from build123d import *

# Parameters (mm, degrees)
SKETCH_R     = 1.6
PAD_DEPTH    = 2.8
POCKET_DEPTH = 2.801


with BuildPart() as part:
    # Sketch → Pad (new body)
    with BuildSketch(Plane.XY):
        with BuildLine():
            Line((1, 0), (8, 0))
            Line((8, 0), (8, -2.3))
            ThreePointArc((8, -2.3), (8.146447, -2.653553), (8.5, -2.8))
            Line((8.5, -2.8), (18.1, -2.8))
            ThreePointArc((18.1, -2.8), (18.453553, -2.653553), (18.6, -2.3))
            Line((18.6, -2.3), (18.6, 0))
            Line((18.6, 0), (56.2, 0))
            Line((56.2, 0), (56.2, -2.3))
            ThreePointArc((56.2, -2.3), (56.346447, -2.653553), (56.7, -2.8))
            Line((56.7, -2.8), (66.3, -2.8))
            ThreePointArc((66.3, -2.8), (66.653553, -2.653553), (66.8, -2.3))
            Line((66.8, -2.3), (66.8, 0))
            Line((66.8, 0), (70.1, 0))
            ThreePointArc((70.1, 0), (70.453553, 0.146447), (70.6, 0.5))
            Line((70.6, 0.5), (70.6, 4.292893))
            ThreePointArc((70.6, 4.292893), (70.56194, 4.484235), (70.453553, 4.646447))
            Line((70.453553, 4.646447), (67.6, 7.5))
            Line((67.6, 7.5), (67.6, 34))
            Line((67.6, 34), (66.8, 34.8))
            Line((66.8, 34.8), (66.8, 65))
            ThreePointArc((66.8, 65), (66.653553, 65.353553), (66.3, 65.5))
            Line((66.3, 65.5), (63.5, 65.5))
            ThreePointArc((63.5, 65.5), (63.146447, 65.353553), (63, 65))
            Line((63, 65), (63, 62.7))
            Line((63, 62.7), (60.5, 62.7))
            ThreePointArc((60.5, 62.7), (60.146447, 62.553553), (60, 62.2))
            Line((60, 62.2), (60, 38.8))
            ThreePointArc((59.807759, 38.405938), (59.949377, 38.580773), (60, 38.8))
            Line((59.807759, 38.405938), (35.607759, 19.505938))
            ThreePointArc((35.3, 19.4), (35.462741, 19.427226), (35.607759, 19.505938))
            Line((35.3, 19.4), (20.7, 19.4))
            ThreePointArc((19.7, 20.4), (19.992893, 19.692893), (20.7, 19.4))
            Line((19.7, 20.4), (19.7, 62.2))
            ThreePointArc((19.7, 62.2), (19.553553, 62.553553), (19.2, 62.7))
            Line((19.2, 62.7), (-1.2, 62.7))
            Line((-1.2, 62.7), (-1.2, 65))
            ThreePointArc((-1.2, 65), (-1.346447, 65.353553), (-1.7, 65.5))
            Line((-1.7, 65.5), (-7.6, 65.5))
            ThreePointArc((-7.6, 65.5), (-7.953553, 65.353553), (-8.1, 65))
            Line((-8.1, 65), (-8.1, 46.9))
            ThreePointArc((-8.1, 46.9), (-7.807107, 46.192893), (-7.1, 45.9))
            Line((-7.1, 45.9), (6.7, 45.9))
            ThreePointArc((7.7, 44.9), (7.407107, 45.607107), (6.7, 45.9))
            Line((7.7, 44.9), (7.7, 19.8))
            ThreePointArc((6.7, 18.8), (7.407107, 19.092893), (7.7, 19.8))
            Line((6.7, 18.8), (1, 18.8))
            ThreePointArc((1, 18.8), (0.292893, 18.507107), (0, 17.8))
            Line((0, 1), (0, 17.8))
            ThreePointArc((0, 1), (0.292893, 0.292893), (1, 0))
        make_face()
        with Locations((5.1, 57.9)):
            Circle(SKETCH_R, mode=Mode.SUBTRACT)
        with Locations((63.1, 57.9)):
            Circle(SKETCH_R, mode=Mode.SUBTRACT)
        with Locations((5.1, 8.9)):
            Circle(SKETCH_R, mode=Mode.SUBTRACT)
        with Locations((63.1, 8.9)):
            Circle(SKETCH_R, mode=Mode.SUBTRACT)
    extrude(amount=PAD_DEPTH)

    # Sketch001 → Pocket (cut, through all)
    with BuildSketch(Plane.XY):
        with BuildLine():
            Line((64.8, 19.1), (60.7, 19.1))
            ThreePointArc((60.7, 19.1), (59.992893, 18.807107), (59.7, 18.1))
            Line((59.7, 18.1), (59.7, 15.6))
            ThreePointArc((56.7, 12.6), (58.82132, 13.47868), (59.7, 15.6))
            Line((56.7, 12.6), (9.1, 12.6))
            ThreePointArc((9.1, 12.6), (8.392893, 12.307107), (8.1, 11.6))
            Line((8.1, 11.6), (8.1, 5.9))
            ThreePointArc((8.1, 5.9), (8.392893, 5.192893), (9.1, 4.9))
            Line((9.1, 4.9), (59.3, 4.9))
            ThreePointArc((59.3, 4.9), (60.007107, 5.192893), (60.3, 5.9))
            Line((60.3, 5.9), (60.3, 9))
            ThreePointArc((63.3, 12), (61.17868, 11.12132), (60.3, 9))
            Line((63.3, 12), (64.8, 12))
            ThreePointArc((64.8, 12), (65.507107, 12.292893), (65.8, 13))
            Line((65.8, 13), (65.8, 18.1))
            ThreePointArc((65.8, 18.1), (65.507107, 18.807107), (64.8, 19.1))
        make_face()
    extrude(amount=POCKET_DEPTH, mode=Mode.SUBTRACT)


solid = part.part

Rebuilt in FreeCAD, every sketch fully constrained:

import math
import FreeCAD as App
import Part
import Sketcher
Q = App.Units.Quantity

doc = App.newDocument("Part")
params = doc.addObject("Spreadsheet::Sheet", "Params")
for row, (alias, value) in enumerate([
    ("sketch1_radius", "0.999999 mm"),
    ("sketch1_diameter", "3.2 mm"),
    ("sketch1_radius2", "0.500001 mm"),
    ("sketch1_width", "7 mm"),
    ("sketch1_width2", "9.6 mm"),
    ("pad1_length", "2.8 mm"),
    ("sketch2_radius", "0.999999 mm"),
    ("sketch2_radius2", "3.000001 mm"),
    ("sketch2_width", "4.1 mm"),
    ("sketch2_width2", "47.6 mm"),
    ("sketch2_width3", "50.2 mm"),
], start=1):
    params.set(f"A{row}", alias)
    params.set(f"B{row}", "=" + value)
    params.setAlias(f"B{row}", alias)

body = doc.addObject("PartDesign::Body", "Body")

# Sketch on XY plane
sketch1 = body.newObject("Sketcher::SketchObject", "Sketch")
sketch1.AttachmentSupport = (doc.getObject("XY_Plane"), [""])
sketch1.MapMode = "FlatFace"
sketch1.addGeometry(Part.LineSegment(App.Vector(1, 0, 0), App.Vector(8, 0, 0)), False)
sketch1.addGeometry(Part.LineSegment(App.Vector(8, 0, 0), App.Vector(8, -2.3, 0)), False)
sketch1.addGeometry(Part.ArcOfCircle(Part.Circle(App.Vector(8.5, -2.3, 0), App.Vector(0, 0, 1), 0.5), math.radians(-180), math.radians(-90)), False)
sketch1.addGeometry(Part.LineSegment(App.Vector(8.5, -2.8, 0), App.Vector(18.1, -2.8, 0)), False)
sketch1.addGeometry(Part.ArcOfCircle(Part.Circle(App.Vector(18.1, -2.3, 0), App.Vector(0, 0, 1), 0.5), math.radians(-90), math.radians(0)), False)
sketch1.addGeometry(Part.LineSegment(App.Vector(18.6, -2.3, 0), App.Vector(18.6, 0, 0)), False)
sketch1.addGeometry(Part.LineSegment(App.Vector(18.6, 0, 0), App.Vector(56.2, 0, 0)), False)
sketch1.addGeometry(Part.LineSegment(App.Vector(56.2, 0, 0), App.Vector(56.2, -2.3, 0)), False)
sketch1.addGeometry(Part.ArcOfCircle(Part.Circle(App.Vector(56.7, -2.3, 0), App.Vector(0, 0, 1), 0.5), math.radians(-180), math.radians(-90)), False)
sketch1.addGeometry(Part.LineSegment(App.Vector(56.7, -2.8, 0), App.Vector(66.3, -2.8, 0)), False)
sketch1.addGeometry(Part.ArcOfCircle(Part.Circle(App.Vector(66.3, -2.3, 0), App.Vector(0, 0, 1), 0.5), math.radians(-90), math.radians(0)), False)
sketch1.addGeometry(Part.LineSegment(App.Vector(66.8, -2.3, 0), App.Vector(66.8, 0, 0)), False)
sketch1.addGeometry(Part.LineSegment(App.Vector(66.8, 0, 0), App.Vector(70.1, 0, 0)), False)
sketch1.addGeometry(Part.ArcOfCircle(Part.Circle(App.Vector(70.1, 0.5, 0), App.Vector(0, 0, 1), 0.5), math.radians(-90), math.radians(0)), False)
sketch1.addGeometry(Part.LineSegment(App.Vector(70.6, 0.5, 0), App.Vector(70.6, 4.29, 0)), False)
sketch1.addGeometry(Part.ArcOfCircle(Part.Circle(App.Vector(70.1, 4.29, 0), App.Vector(0, 0, 1), 0.5), math.radians(0), math.radians(45)), False)
sketch1.addGeometry(Part.LineSegment(App.Vector(70.45, 4.65, 0), App.Vector(67.6, 7.5, 0)), False)
sketch1.addGeometry(Part.LineSegment(App.Vector(67.6, 7.5, 0), App.Vector(67.6, 34, 0)), False)
sketch1.addGeometry(Part.LineSegment(App.Vector(67.6, 34, 0), App.Vector(66.8, 34.8, 0)), False)
sketch1.addGeometry(Part.LineSegment(App.Vector(66.8, 34.8, 0), App.Vector(66.8, 65, 0)), False)
sketch1.addGeometry(Part.ArcOfCircle(Part.Circle(App.Vector(66.3, 65, 0), App.Vector(0, 0, 1), 0.5), math.radians(0), math.radians(90)), False)
sketch1.addGeometry(Part.LineSegment(App.Vector(66.3, 65.5, 0), App.Vector(63.5, 65.5, 0)), False)
sketch1.addGeometry(Part.ArcOfCircle(Part.Circle(App.Vector(63.5, 65, 0), App.Vector(0, 0, 1), 0.5), math.radians(90), math.radians(180)), False)
sketch1.addGeometry(Part.LineSegment(App.Vector(63, 65, 0), App.Vector(63, 62.7, 0)), False)
sketch1.addGeometry(Part.LineSegment(App.Vector(63, 62.7, 0), App.Vector(60.5, 62.7, 0)), False)
sketch1.addGeometry(Part.ArcOfCircle(Part.Circle(App.Vector(60.5, 62.2, 0), App.Vector(0, 0, 1), 0.5), math.radians(90), math.radians(180)), False)
sketch1.addGeometry(Part.LineSegment(App.Vector(60, 62.2, 0), App.Vector(60, 38.8, 0)), False)
sketch1.addGeometry(Part.ArcOfCircle(Part.Circle(App.Vector(59.5, 38.8, 0), App.Vector(0, 0, 1), 0.5), math.radians(-52), math.radians(0)), False)
sketch1.addGeometry(Part.LineSegment(App.Vector(59.81, 38.41, 0), App.Vector(35.61, 19.51, 0)), False)
sketch1.addGeometry(Part.ArcOfCircle(Part.Circle(App.Vector(35.3, 19.9, 0), App.Vector(0, 0, 1), 0.5), math.radians(-90), math.radians(-52)), False)
sketch1.addGeometry(Part.LineSegment(App.Vector(35.3, 19.4, 0), App.Vector(20.7, 19.4, 0)), False)
sketch1.addGeometry(Part.ArcOfCircle(Part.Circle(App.Vector(20.7, 20.4, 0), App.Vector(0, 0, 1), 1), math.radians(180), math.radians(270)), False)
sketch1.addGeometry(Part.LineSegment(App.Vector(19.7, 20.4, 0), App.Vector(19.7, 62.2, 0)), False)
sketch1.addGeometry(Part.ArcOfCircle(Part.Circle(App.Vector(19.2, 62.2, 0), App.Vector(0, 0, 1), 0.5), math.radians(0), math.radians(90)), False)
sketch1.addGeometry(Part.LineSegment(App.Vector(19.2, 62.7, 0), App.Vector(-1.2, 62.7, 0)), False)
sketch1.addGeometry(Part.LineSegment(App.Vector(-1.2, 62.7, 0), App.Vector(-1.2, 65, 0)), False)
sketch1.addGeometry(Part.ArcOfCircle(Part.Circle(App.Vector(-1.7, 65, 0), App.Vector(0, 0, 1), 0.5), math.radians(0), math.radians(90)), False)
sketch1.addGeometry(Part.LineSegment(App.Vector(-1.7, 65.5, 0), App.Vector(-7.6, 65.5, 0)), False)
sketch1.addGeometry(Part.ArcOfCircle(Part.Circle(App.Vector(-7.6, 65, 0), App.Vector(0, 0, 1), 0.5), math.radians(90), math.radians(180)), False)
sketch1.addGeometry(Part.LineSegment(App.Vector(-8.1, 65, 0), App.Vector(-8.1, 46.9, 0)), False)
sketch1.addGeometry(Part.ArcOfCircle(Part.Circle(App.Vector(-7.1, 46.9, 0), App.Vector(0, 0, 1), 1), math.radians(180), math.radians(270)), False)
sketch1.addGeometry(Part.LineSegment(App.Vector(-7.1, 45.9, 0), App.Vector(6.7, 45.9, 0)), False)
sketch1.addGeometry(Part.ArcOfCircle(Part.Circle(App.Vector(6.7, 44.9, 0), App.Vector(0, 0, 1), 1), math.radians(0), math.radians(90)), False)
sketch1.addGeometry(Part.LineSegment(App.Vector(7.7, 44.9, 0), App.Vector(7.7, 19.8, 0)), False)
sketch1.addGeometry(Part.ArcOfCircle(Part.Circle(App.Vector(6.7, 19.8, 0), App.Vector(0, 0, 1), 1), math.radians(-90), math.radians(0)), False)
sketch1.addGeometry(Part.LineSegment(App.Vector(6.7, 18.8, 0), App.Vector(1, 18.8, 0)), False)
sketch1.addGeometry(Part.ArcOfCircle(Part.Circle(App.Vector(1, 17.8, 0), App.Vector(0, 0, 1), 1), math.radians(90), math.radians(180)), False)
sketch1.addGeometry(Part.LineSegment(App.Vector(0, 17.8, 0), App.Vector(0, 1, 0)), False)
sketch1.addGeometry(Part.ArcOfCircle(Part.Circle(App.Vector(1, 1, 0), App.Vector(0, 0, 1), 1), math.radians(180), math.radians(270)), False)
sketch1.addGeometry(Part.Circle(App.Vector(5.1, 8.9, 0), App.Vector(0, 0, 1), 1.6), False)
sketch1.addGeometry(Part.Circle(App.Vector(63.1, 8.9, 0), App.Vector(0, 0, 1), 1.6), False)
sketch1.addGeometry(Part.Circle(App.Vector(5.1, 57.9, 0), App.Vector(0, 0, 1), 1.6), False)
sketch1.addGeometry(Part.Circle(App.Vector(63.1, 57.9, 0), App.Vector(0, 0, 1), 1.6), False)
sketch1.addConstraint(Sketcher.Constraint("Coincident", 0, 2, 1, 1))
sketch1.addConstraint(Sketcher.Constraint("Coincident", 1, 2, 2, 1))
sketch1.addConstraint(Sketcher.Constraint("Coincident", 2, 2, 3, 1))
sketch1.addConstraint(Sketcher.Constraint("Coincident", 3, 2, 4, 1))
sketch1.addConstraint(Sketcher.Constraint("Coincident", 4, 2, 5, 1))
sketch1.addConstraint(Sketcher.Constraint("Coincident", 5, 2, 6, 1))
sketch1.addConstraint(Sketcher.Constraint("Coincident", 6, 2, 7, 1))
sketch1.addConstraint(Sketcher.Constraint("Coincident", 7, 2, 8, 1))
sketch1.addConstraint(Sketcher.Constraint("Coincident", 8, 2, 9, 1))
sketch1.addConstraint(Sketcher.Constraint("Coincident", 9, 2, 10, 1))
sketch1.addConstraint(Sketcher.Constraint("Coincident", 10, 2, 11, 1))
sketch1.addConstraint(Sketcher.Constraint("Coincident", 11, 2, 12, 1))
sketch1.addConstraint(Sketcher.Constraint("Coincident", 12, 2, 13, 1))
sketch1.addConstraint(Sketcher.Constraint("Coincident", 13, 2, 14, 1))
sketch1.addConstraint(Sketcher.Constraint("Coincident", 14, 2, 15, 1))
sketch1.addConstraint(Sketcher.Constraint("Coincident", 15, 2, 16, 1))
sketch1.addConstraint(Sketcher.Constraint("Coincident", 16, 2, 17, 1))
sketch1.addConstraint(Sketcher.Constraint("Coincident", 17, 2, 18, 1))
sketch1.addConstraint(Sketcher.Constraint("Coincident", 18, 2, 19, 1))
sketch1.addConstraint(Sketcher.Constraint("Coincident", 19, 2, 20, 1))
sketch1.addConstraint(Sketcher.Constraint("Coincident", 20, 2, 21, 1))
sketch1.addConstraint(Sketcher.Constraint("Coincident", 21, 2, 22, 1))
sketch1.addConstraint(Sketcher.Constraint("Coincident", 22, 2, 23, 1))
sketch1.addConstraint(Sketcher.Constraint("Coincident", 23, 2, 24, 1))
sketch1.addConstraint(Sketcher.Constraint("Coincident", 24, 2, 25, 1))
sketch1.addConstraint(Sketcher.Constraint("Coincident", 25, 2, 26, 1))
sketch1.addConstraint(Sketcher.Constraint("Tangent", 26, 2, 27, 2))
sketch1.addConstraint(Sketcher.Constraint("Tangent", 27, 1, 28, 1))
sketch1.addConstraint(Sketcher.Constraint("Coincident", 28, 2, 29, 2))
sketch1.addConstraint(Sketcher.Constraint("Coincident", 29, 1, 30, 1))
sketch1.addConstraint(Sketcher.Constraint("Tangent", 30, 2, 31, 2))
sketch1.addConstraint(Sketcher.Constraint("Tangent", 31, 1, 32, 1))
sketch1.addConstraint(Sketcher.Constraint("Coincident", 32, 2, 33, 1))
sketch1.addConstraint(Sketcher.Constraint("Coincident", 33, 2, 34, 1))
sketch1.addConstraint(Sketcher.Constraint("Coincident", 34, 2, 35, 1))
sketch1.addConstraint(Sketcher.Constraint("Coincident", 35, 2, 36, 1))
sketch1.addConstraint(Sketcher.Constraint("Coincident", 36, 2, 37, 1))
sketch1.addConstraint(Sketcher.Constraint("Coincident", 37, 2, 38, 1))
sketch1.addConstraint(Sketcher.Constraint("Coincident", 38, 2, 39, 1))
sketch1.addConstraint(Sketcher.Constraint("Tangent", 39, 2, 40, 1))
sketch1.addConstraint(Sketcher.Constraint("Tangent", 40, 2, 41, 1))
sketch1.addConstraint(Sketcher.Constraint("Tangent", 41, 2, 42, 2))
sketch1.addConstraint(Sketcher.Constraint("Tangent", 42, 1, 43, 1))
sketch1.addConstraint(Sketcher.Constraint("Tangent", 43, 2, 44, 2))
sketch1.addConstraint(Sketcher.Constraint("Tangent", 44, 1, 45, 1))
sketch1.addConstraint(Sketcher.Constraint("Tangent", 45, 2, 46, 1))
sketch1.addConstraint(Sketcher.Constraint("Tangent", 46, 2, 47, 1))
sketch1.addConstraint(Sketcher.Constraint("Tangent", 47, 2, 48, 1))
sketch1.addConstraint(Sketcher.Constraint("Tangent", 48, 2, 0, 1))
sketch1.addConstraint(Sketcher.Constraint("Horizontal", 0))
sketch1.addConstraint(Sketcher.Constraint("Vertical", 1))
sketch1.addConstraint(Sketcher.Constraint("Horizontal", 3))
sketch1.addConstraint(Sketcher.Constraint("Vertical", 5))
sketch1.addConstraint(Sketcher.Constraint("Horizontal", 6))
sketch1.addConstraint(Sketcher.Constraint("Vertical", 7))
sketch1.addConstraint(Sketcher.Constraint("Horizontal", 9))
sketch1.addConstraint(Sketcher.Constraint("Vertical", 11))
sketch1.addConstraint(Sketcher.Constraint("Horizontal", 12))
sketch1.addConstraint(Sketcher.Constraint("Vertical", 14))
sketch1.addConstraint(Sketcher.Constraint("Vertical", 17))
sketch1.addConstraint(Sketcher.Constraint("Vertical", 19))
sketch1.addConstraint(Sketcher.Constraint("Horizontal", 21))
sketch1.addConstraint(Sketcher.Constraint("Vertical", 23))
sketch1.addConstraint(Sketcher.Constraint("Horizontal", 24))
sketch1.addConstraint(Sketcher.Constraint("Vertical", 26))
sketch1.addConstraint(Sketcher.Constraint("Horizontal", 30))
sketch1.addConstraint(Sketcher.Constraint("Vertical", 32))
sketch1.addConstraint(Sketcher.Constraint("Horizontal", 34))
sketch1.addConstraint(Sketcher.Constraint("Vertical", 35))
sketch1.addConstraint(Sketcher.Constraint("Horizontal", 37))
sketch1.addConstraint(Sketcher.Constraint("Vertical", 39))
sketch1.addConstraint(Sketcher.Constraint("Horizontal", 41))
sketch1.addConstraint(Sketcher.Constraint("Vertical", 43))
sketch1.addConstraint(Sketcher.Constraint("Horizontal", 45))
sketch1.addConstraint(Sketcher.Constraint("Vertical", 47))
sketch1.addConstraint(Sketcher.Constraint("Equal", 2, 4))
sketch1.addConstraint(Sketcher.Constraint("Equal", 4, 8))
sketch1.addConstraint(Sketcher.Constraint("Equal", 8, 10))
sketch1.addConstraint(Sketcher.Constraint("Equal", 10, 13))
sketch1.addConstraint(Sketcher.Constraint("Equal", 13, 20))
sketch1.addConstraint(Sketcher.Constraint("Equal", 20, 22))
sketch1.addConstraint(Sketcher.Constraint("Equal", 22, 25))
sketch1.addConstraint(Sketcher.Constraint("Equal", 25, 27))
sketch1.addConstraint(Sketcher.Constraint("Equal", 27, 33))
sketch1.addConstraint(Sketcher.Constraint("Equal", 33, 36))
sketch1.addConstraint(Sketcher.Constraint("Equal", 36, 38))
sketch1.addConstraint(Sketcher.Constraint("Equal", 31, 40))
sketch1.addConstraint(Sketcher.Constraint("Equal", 40, 42))
sketch1.addConstraint(Sketcher.Constraint("Equal", 42, 44))
sketch1.addConstraint(Sketcher.Constraint("Equal", 44, 46))
sketch1.addConstraint(Sketcher.Constraint("Equal", 46, 48))
sketch1.addConstraint(Sketcher.Constraint("Equal", 49, 50))
sketch1.addConstraint(Sketcher.Constraint("Equal", 50, 51))
sketch1.addConstraint(Sketcher.Constraint("Equal", 51, 52))
sketch1.addConstraint(Sketcher.Constraint("PointOnObject", 0, 2, -1))
sketch1.addConstraint(Sketcher.Constraint("PointOnObject", 5, 2, -1))
sketch1.addConstraint(Sketcher.Constraint("PointOnObject", 11, 2, -1))
sketch1.addConstraint(Sketcher.Constraint("PointOnObject", 46, 2, -2))
sketch1.addConstraint(Sketcher.Constraint("Parallel", 16, 18))
sketch1.addConstraint(Sketcher.Constraint("Horizontal", 4, 3, 8, 3))
sketch1.addConstraint(Sketcher.Constraint("Horizontal", 25, 3, 33, 3))
sketch1.addConstraint(Sketcher.Constraint("Horizontal", 22, 3, 36, 3))
sketch1.addConstraint(Sketcher.Constraint("Horizontal", 49, 3, 50, 3))
sketch1.addConstraint(Sketcher.Constraint("Horizontal", 51, 3, 52, 3))
sketch1.addConstraint(Sketcher.Constraint("Horizontal", 10, 3, 1, 2))
sketch1.addConstraint(Sketcher.Constraint("Horizontal", 1, 2, 4, 2))
sketch1.addConstraint(Sketcher.Constraint("Horizontal", 4, 2, 7, 2))
sketch1.addConstraint(Sketcher.Constraint("Horizontal", 7, 2, 10, 2))
sketch1.addConstraint(Sketcher.Constraint("Horizontal", 15, 3, 14, 2))
sketch1.addConstraint(Sketcher.Constraint("Horizontal", 38, 3, 19, 2))
sketch1.addConstraint(Sketcher.Constraint("Horizontal", 19, 2, 22, 2))
sketch1.addConstraint(Sketcher.Constraint("Horizontal", 33, 3, 25, 2))
sketch1.addConstraint(Sketcher.Constraint("Horizontal", 25, 2, 32, 2))
sketch1.addConstraint(Sketcher.Constraint("Horizontal", 22, 2, 35, 2))
sketch1.addConstraint(Sketcher.Constraint("Horizontal", 35, 2, 38, 2))
sketch1.addConstraint(Sketcher.Constraint("Vertical", 10, 3, 20, 3))
sketch1.addConstraint(Sketcher.Constraint("Vertical", 49, 3, 51, 3))
sketch1.addConstraint(Sketcher.Constraint("Vertical", 50, 3, 52, 3))
sketch1.addConstraint(Sketcher.Constraint("Vertical", 4, 3, 3, 2))
sketch1.addConstraint(Sketcher.Constraint("Vertical", 20, 3, 9, 2))
sketch1.addConstraint(Sketcher.Constraint("Vertical", 13, 3, 12, 2))
sketch1.addConstraint(Sketcher.Constraint("Vertical", 9, 2, 20, 2))
sketch1.addConstraint(Sketcher.Constraint("Vertical", 22, 3, 21, 2))
sketch1.addConstraint(Sketcher.Constraint("Vertical", 25, 3, 24, 2))
sketch1.addConstraint(Sketcher.Constraint("Vertical", 38, 3, 37, 2))
sketch1.addConstraint(Sketcher.Constraint("Equal", 3, 9))
sketch1.addConstraint(Sketcher.Constraint("Equal", 11, 23))
sketch1.addConstraint(Sketcher.Constraint("Radius", 31, Q("0.999999 mm")))
sketch1.addConstraint(Sketcher.Constraint("Diameter", 49, Q("3.2 mm")))
sketch1.addConstraint(Sketcher.Constraint("Radius", 2, Q("0.500001 mm")))
sketch1.addConstraint(Sketcher.Constraint("DistanceX", 0, 1, 0, 2, Q("7 mm")))
sketch1.addConstraint(Sketcher.Constraint("Angle", 16, Q("135 deg")))
sketch1.addConstraint(Sketcher.Constraint("DistanceX", 3, 1, 3, 2, Q("9.6 mm")))
sketch1.addConstraint(Sketcher.Constraint("DistanceX", 6, 1, 6, 2, Q("37.6 mm")))
sketch1.addConstraint(Sketcher.Constraint("DistanceX", 12, 1, 12, 2, Q("3.3 mm")))
sketch1.addConstraint(Sketcher.Constraint("DistanceX", 21, 2, 21, 1, Q("2.8 mm")))
sketch1.addConstraint(Sketcher.Constraint("DistanceX", 24, 2, 24, 1, Q("2.5 mm")))
sketch1.addConstraint(Sketcher.Constraint("DistanceX", 30, 2, 30, 1, Q("14.6 mm")))
sketch1.addConstraint(Sketcher.Constraint("DistanceX", 34, 2, 34, 1, Q("20.4 mm")))
sketch1.addConstraint(Sketcher.Constraint("DistanceX", 37, 2, 37, 1, Q("5.9 mm")))
sketch1.addConstraint(Sketcher.Constraint("DistanceX", 41, 1, 41, 2, Q("13.8 mm")))
sketch1.addConstraint(Sketcher.Constraint("DistanceX", 45, 2, 45, 1, Q("5.7 mm")))
sketch1.addConstraint(Sketcher.Constraint("DistanceY", 1, 2, 1, 1, Q("2.3 mm")))
sketch1.addConstraint(Sketcher.Constraint("DistanceY", 17, 1, 17, 2, Q("26.5 mm")))
sketch1.addConstraint(Sketcher.Constraint("DistanceY", 19, 1, 19, 2, Q("30.2 mm")))
sketch1.addConstraint(Sketcher.Constraint("DistanceY", 26, 2, 26, 1, Q("23.4 mm")))
sketch1.addConstraint(Sketcher.Constraint("DistanceY", 32, 1, 32, 2, Q("41.8 mm")))
sketch1.addConstraint(Sketcher.Constraint("DistanceY", 39, 2, 39, 1, Q("18.1 mm")))
sketch1.addConstraint(Sketcher.Constraint("DistanceY", 43, 2, 43, 1, Q("25.1 mm")))
sketch1.addConstraint(Sketcher.Constraint("DistanceY", 47, 2, 47, 1, Q("16.8 mm")))
sketch1.addConstraint(Sketcher.Constraint("DistanceY", -1, 1, 17, 2, Q("34 mm")))
sketch1.addConstraint(Sketcher.Constraint("DistanceX", -1, 1, 22, 2, Q("63 mm")))
sketch1.addConstraint(Sketcher.Constraint("DistanceX", -1, 1, 4, 3, Q("18.099999 mm")))
sketch1.addConstraint(Sketcher.Constraint("DistanceX", -1, 1, 29, 3, Q("35.299999 mm")))
sketch1.addConstraint(Sketcher.Constraint("DistanceX", -1, 1, 31, 3, Q("20.699999 mm")))
sketch1.addConstraint(Sketcher.Constraint("DistanceX", 36, 3, -1, 1, Q("1.700001 mm")))
sketch1.addConstraint(Sketcher.Constraint("DistanceX", -1, 1, 49, 3, Q("5.1 mm")))
sketch1.addConstraint(Sketcher.Constraint("DistanceY", -1, 1, 49, 3, Q("8.9 mm")))
sketch1.addConstraint(Sketcher.Constraint("DistanceX", -1, 1, 50, 3, Q("63.1 mm")))
sketch1.addConstraint(Sketcher.Constraint("DistanceY", -1, 1, 51, 3, Q("57.9 mm")))
sketch1.addConstraint(Sketcher.Constraint("DistanceY", -1, 1, 13, 2, Q("0.5 mm")))
sketch1.addConstraint(Sketcher.Constraint("Radius", 15, Q("0.499997 mm")))
sketch1.addConstraint(Sketcher.Constraint("Radius", 29, Q("0.500006 mm")))
sketch1.addConstraint(Sketcher.Constraint("DistanceX", -1, 1, 28, 2, Q("35.607759 mm")))
sketch1.addConstraint(Sketcher.Constraint("Distance", 16, Q("4.035533 mm")))
sketch1.setExpression("Constraints[127]", "Params.sketch1_radius")
sketch1.setExpression("Constraints[128]", "Params.sketch1_diameter")
sketch1.setExpression("Constraints[129]", "Params.sketch1_radius2")
sketch1.setExpression("Constraints[130]", "Params.sketch1_width")
sketch1.setExpression("Constraints[132]", "Params.sketch1_width2")
pad1 = body.newObject("PartDesign::Pad", "Pad")
pad1.Profile = sketch1
pad1.setExpression("Length", "Params.pad1_length")

# Sketch on XY plane
sketch2 = body.newObject("Sketcher::SketchObject", "Sketch001")
sketch2.AttachmentSupport = (doc.getObject("XY_Plane"), [""])
sketch2.MapMode = "FlatFace"
sketch2.addGeometry(Part.LineSegment(App.Vector(64.8, 19.1, 0), App.Vector(60.7, 19.1, 0)), False)
sketch2.addGeometry(Part.ArcOfCircle(Part.Circle(App.Vector(60.7, 18.1, 0), App.Vector(0, 0, 1), 1), math.radians(90), math.radians(180)), False)
sketch2.addGeometry(Part.LineSegment(App.Vector(59.7, 18.1, 0), App.Vector(59.7, 15.6, 0)), False)
sketch2.addGeometry(Part.ArcOfCircle(Part.Circle(App.Vector(56.7, 15.6, 0), App.Vector(0, 0, 1), 3), math.radians(-90), math.radians(0)), False)
sketch2.addGeometry(Part.LineSegment(App.Vector(56.7, 12.6, 0), App.Vector(9.1, 12.6, 0)), False)
sketch2.addGeometry(Part.ArcOfCircle(Part.Circle(App.Vector(9.1, 11.6, 0), App.Vector(0, 0, 1), 1), math.radians(90), math.radians(180)), False)
sketch2.addGeometry(Part.LineSegment(App.Vector(8.1, 11.6, 0), App.Vector(8.1, 5.9, 0)), False)
sketch2.addGeometry(Part.ArcOfCircle(Part.Circle(App.Vector(9.1, 5.9, 0), App.Vector(0, 0, 1), 1), math.radians(180), math.radians(270)), False)
sketch2.addGeometry(Part.LineSegment(App.Vector(9.1, 4.9, 0), App.Vector(59.3, 4.9, 0)), False)
sketch2.addGeometry(Part.ArcOfCircle(Part.Circle(App.Vector(59.3, 5.9, 0), App.Vector(0, 0, 1), 1), math.radians(-90), math.radians(0)), False)
sketch2.addGeometry(Part.LineSegment(App.Vector(60.3, 5.9, 0), App.Vector(60.3, 9, 0)), False)
sketch2.addGeometry(Part.ArcOfCircle(Part.Circle(App.Vector(63.3, 9, 0), App.Vector(0, 0, 1), 3), math.radians(90), math.radians(180)), False)
sketch2.addGeometry(Part.LineSegment(App.Vector(63.3, 12, 0), App.Vector(64.8, 12, 0)), False)
sketch2.addGeometry(Part.ArcOfCircle(Part.Circle(App.Vector(64.8, 13, 0), App.Vector(0, 0, 1), 1), math.radians(-90), math.radians(0)), False)
sketch2.addGeometry(Part.LineSegment(App.Vector(65.8, 13, 0), App.Vector(65.8, 18.1, 0)), False)
sketch2.addGeometry(Part.ArcOfCircle(Part.Circle(App.Vector(64.8, 18.1, 0), App.Vector(0, 0, 1), 1), math.radians(0), math.radians(90)), False)
sketch2.addConstraint(Sketcher.Constraint("Tangent", 0, 2, 1, 1))
sketch2.addConstraint(Sketcher.Constraint("Tangent", 1, 2, 2, 1))
sketch2.addConstraint(Sketcher.Constraint("Tangent", 2, 2, 3, 2))
sketch2.addConstraint(Sketcher.Constraint("Tangent", 3, 1, 4, 1))
sketch2.addConstraint(Sketcher.Constraint("Tangent", 4, 2, 5, 1))
sketch2.addConstraint(Sketcher.Constraint("Tangent", 5, 2, 6, 1))
sketch2.addConstraint(Sketcher.Constraint("Tangent", 6, 2, 7, 1))
sketch2.addConstraint(Sketcher.Constraint("Tangent", 7, 2, 8, 1))
sketch2.addConstraint(Sketcher.Constraint("Tangent", 8, 2, 9, 1))
sketch2.addConstraint(Sketcher.Constraint("Tangent", 9, 2, 10, 1))
sketch2.addConstraint(Sketcher.Constraint("Tangent", 10, 2, 11, 2))
sketch2.addConstraint(Sketcher.Constraint("Tangent", 11, 1, 12, 1))
sketch2.addConstraint(Sketcher.Constraint("Tangent", 12, 2, 13, 1))
sketch2.addConstraint(Sketcher.Constraint("Tangent", 13, 2, 14, 1))
sketch2.addConstraint(Sketcher.Constraint("Tangent", 14, 2, 15, 1))
sketch2.addConstraint(Sketcher.Constraint("Tangent", 15, 2, 0, 1))
sketch2.addConstraint(Sketcher.Constraint("Horizontal", 0))
sketch2.addConstraint(Sketcher.Constraint("Vertical", 2))
sketch2.addConstraint(Sketcher.Constraint("Horizontal", 4))
sketch2.addConstraint(Sketcher.Constraint("Vertical", 6))
sketch2.addConstraint(Sketcher.Constraint("Horizontal", 8))
sketch2.addConstraint(Sketcher.Constraint("Vertical", 10))
sketch2.addConstraint(Sketcher.Constraint("Horizontal", 12))
sketch2.addConstraint(Sketcher.Constraint("Vertical", 14))
sketch2.addConstraint(Sketcher.Constraint("Equal", 1, 5))
sketch2.addConstraint(Sketcher.Constraint("Equal", 5, 7))
sketch2.addConstraint(Sketcher.Constraint("Equal", 7, 9))
sketch2.addConstraint(Sketcher.Constraint("Equal", 3, 11))
sketch2.addConstraint(Sketcher.Constraint("Equal", 9, 13))
sketch2.addConstraint(Sketcher.Constraint("Equal", 13, 15))
sketch2.addConstraint(Sketcher.Constraint("Radius", 1, Q("0.999999 mm")))
sketch2.addConstraint(Sketcher.Constraint("Radius", 3, Q("3.000001 mm")))
sketch2.addConstraint(Sketcher.Constraint("DistanceX", 0, 2, 0, 1, Q("4.1 mm")))
sketch2.addConstraint(Sketcher.Constraint("DistanceX", 4, 2, 4, 1, Q("47.6 mm")))
sketch2.addConstraint(Sketcher.Constraint("DistanceX", 8, 1, 8, 2, Q("50.2 mm")))
sketch2.addConstraint(Sketcher.Constraint("DistanceY", 2, 2, 2, 1, Q("2.5 mm")))
sketch2.addConstraint(Sketcher.Constraint("DistanceY", 6, 2, 6, 1, Q("5.7 mm")))
sketch2.addConstraint(Sketcher.Constraint("DistanceY", 10, 1, 10, 2, Q("3.1 mm")))
sketch2.addConstraint(Sketcher.Constraint("DistanceY", -1, 1, 11, 3, Q("8.999999 mm")))
sketch2.addConstraint(Sketcher.Constraint("DistanceX", -1, 1, 1, 3, Q("60.699999 mm")))
sketch2.setExpression("Constraints[30]", "Params.sketch2_radius")
sketch2.setExpression("Constraints[31]", "Params.sketch2_radius2")
sketch2.setExpression("Constraints[32]", "Params.sketch2_width")
sketch2.setExpression("Constraints[33]", "Params.sketch2_width2")
sketch2.setExpression("Constraints[34]", "Params.sketch2_width3")
pocket1 = body.newObject("PartDesign::Pocket", "Pocket")
pocket1.Profile = sketch2
pocket1.Type = "ThroughAll"
pocket1.Reversed = True

doc.recompute()
